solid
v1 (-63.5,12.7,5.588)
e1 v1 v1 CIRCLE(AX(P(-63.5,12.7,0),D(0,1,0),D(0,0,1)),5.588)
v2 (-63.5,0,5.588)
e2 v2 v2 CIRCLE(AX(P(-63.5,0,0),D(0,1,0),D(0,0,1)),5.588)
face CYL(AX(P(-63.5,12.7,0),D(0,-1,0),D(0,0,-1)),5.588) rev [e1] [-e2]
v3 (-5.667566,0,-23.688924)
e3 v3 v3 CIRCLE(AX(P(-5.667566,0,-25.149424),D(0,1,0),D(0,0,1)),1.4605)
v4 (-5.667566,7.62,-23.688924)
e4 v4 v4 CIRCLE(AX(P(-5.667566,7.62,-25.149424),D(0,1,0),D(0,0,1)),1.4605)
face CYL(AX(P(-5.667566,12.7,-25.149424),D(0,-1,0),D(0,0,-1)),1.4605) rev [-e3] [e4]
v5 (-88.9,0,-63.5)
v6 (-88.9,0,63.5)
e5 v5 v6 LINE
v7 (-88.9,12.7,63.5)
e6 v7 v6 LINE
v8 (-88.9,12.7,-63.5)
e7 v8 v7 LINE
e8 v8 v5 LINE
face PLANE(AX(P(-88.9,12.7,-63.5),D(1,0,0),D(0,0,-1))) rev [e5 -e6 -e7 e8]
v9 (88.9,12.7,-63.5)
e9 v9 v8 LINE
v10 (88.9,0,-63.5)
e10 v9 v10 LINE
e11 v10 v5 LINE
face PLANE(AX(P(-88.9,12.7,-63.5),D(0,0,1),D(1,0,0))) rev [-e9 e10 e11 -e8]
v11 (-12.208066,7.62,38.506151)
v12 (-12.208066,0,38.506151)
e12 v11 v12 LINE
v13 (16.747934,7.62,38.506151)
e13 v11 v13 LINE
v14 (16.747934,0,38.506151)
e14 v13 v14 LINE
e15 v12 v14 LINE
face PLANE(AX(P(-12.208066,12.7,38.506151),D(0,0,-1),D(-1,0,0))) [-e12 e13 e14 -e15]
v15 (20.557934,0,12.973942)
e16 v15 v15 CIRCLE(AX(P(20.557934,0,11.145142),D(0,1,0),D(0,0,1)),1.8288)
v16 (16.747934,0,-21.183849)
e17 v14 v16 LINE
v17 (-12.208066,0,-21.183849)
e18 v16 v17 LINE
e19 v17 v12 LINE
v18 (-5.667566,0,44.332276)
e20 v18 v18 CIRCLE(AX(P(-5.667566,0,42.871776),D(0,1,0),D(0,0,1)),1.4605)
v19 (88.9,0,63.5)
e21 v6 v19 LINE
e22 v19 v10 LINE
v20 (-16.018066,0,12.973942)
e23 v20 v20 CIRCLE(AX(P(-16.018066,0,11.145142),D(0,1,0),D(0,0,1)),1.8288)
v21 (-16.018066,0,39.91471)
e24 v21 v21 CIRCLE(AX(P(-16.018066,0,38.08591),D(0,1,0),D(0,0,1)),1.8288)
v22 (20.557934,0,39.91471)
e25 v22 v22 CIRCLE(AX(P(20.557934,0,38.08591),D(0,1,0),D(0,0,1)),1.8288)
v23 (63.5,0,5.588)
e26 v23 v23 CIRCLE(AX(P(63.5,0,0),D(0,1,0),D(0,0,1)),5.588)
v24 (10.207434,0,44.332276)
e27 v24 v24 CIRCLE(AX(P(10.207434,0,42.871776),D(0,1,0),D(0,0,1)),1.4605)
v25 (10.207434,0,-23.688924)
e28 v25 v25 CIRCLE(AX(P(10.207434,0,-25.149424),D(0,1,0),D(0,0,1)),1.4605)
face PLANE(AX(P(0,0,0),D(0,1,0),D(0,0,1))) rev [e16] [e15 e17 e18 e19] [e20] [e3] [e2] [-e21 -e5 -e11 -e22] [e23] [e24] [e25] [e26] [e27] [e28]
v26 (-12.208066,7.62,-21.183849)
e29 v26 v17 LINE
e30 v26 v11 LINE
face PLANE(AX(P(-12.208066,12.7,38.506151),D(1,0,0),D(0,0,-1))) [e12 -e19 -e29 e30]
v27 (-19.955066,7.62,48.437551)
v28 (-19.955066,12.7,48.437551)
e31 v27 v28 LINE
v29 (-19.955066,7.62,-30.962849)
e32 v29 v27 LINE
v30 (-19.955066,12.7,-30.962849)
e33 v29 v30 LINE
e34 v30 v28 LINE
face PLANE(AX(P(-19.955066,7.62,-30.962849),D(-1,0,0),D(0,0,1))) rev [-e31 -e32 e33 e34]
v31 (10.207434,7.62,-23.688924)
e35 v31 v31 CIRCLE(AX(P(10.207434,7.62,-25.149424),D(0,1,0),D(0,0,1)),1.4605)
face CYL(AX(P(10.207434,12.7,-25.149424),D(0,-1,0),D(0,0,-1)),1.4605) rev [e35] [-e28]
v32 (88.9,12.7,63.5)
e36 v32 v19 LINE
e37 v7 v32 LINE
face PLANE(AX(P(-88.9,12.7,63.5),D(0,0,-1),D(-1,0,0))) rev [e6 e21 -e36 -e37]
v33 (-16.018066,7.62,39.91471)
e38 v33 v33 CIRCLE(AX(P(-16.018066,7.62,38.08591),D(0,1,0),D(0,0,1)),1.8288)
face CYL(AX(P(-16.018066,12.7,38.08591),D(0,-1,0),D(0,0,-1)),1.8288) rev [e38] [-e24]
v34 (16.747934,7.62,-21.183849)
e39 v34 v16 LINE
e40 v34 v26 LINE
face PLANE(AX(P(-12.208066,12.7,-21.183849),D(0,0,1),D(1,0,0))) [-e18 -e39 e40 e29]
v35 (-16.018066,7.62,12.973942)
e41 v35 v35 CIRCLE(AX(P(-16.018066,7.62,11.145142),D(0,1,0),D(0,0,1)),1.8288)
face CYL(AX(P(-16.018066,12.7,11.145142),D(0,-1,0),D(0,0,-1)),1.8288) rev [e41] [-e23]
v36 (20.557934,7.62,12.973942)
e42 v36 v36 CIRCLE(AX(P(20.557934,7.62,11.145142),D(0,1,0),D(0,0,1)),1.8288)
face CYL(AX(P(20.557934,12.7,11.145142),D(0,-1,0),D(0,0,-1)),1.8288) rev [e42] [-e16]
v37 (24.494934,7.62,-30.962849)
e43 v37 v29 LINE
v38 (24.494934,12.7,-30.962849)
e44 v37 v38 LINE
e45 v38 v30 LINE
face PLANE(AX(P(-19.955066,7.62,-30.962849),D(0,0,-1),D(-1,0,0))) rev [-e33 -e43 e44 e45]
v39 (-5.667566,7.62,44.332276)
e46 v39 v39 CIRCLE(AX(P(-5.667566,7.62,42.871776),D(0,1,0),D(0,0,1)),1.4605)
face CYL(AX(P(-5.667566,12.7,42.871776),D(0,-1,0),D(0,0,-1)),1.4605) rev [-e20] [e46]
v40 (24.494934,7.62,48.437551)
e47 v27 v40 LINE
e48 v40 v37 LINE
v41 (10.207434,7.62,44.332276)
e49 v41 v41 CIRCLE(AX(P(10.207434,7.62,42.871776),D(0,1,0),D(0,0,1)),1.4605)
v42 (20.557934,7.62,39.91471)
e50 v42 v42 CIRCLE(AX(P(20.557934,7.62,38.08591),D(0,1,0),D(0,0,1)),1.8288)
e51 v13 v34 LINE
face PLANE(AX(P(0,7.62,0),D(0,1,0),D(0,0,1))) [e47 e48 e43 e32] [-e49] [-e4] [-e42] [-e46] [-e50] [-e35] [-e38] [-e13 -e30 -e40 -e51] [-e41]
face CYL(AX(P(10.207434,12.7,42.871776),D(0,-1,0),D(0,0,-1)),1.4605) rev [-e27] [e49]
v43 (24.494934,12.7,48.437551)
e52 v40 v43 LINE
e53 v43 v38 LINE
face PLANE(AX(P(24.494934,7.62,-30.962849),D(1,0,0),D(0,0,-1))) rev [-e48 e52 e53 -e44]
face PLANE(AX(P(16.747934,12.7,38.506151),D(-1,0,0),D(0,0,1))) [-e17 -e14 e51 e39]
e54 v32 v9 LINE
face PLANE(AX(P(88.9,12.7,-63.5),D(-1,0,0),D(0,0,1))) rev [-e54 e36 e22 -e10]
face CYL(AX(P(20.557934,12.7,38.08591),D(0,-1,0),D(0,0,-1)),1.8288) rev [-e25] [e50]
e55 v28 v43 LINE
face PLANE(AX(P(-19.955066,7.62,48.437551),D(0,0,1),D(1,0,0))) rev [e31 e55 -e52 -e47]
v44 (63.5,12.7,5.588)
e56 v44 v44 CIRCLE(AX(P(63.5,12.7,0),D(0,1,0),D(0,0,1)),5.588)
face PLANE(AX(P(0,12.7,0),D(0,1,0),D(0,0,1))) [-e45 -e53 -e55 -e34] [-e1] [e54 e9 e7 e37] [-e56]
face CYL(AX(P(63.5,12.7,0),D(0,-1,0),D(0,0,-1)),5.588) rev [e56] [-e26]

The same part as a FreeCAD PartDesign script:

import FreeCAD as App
import Part
import Sketcher
from FreeCAD import Vector
Q = App.Units.Quantity

doc = App.newDocument("Part")
body = doc.addObject("PartDesign::Body", "Body")

sketch1 = body.newObject("Sketcher::SketchObject", "Sketch")
sketch1.AttachmentSupport = (doc.getObject("XZ_Plane"), [""])
sketch1.MapMode = "FlatFace"
sketch1.addGeometry([
    Part.LineSegment(Vector(-88.9, -63.5, 0), Vector(-88.9, 63.5, 0)),
    Part.LineSegment(Vector(-88.9, 63.5, 0), Vector(88.9, 63.5, 0)),
    Part.LineSegment(Vector(88.9, 63.5, 0), Vector(88.9, -63.5, 0)),
    Part.LineSegment(Vector(88.9, -63.5, 0), Vector(-88.9, -63.5, 0)),
    Part.Circle(Vector(-5.7, 42.9, 0), Vector(0, 0, 1), 1.5),
    Part.Circle(Vector(-16, 38.1, 0), Vector(0, 0, 1), 1.8),
    Part.Circle(Vector(-16, 11.1, 0), Vector(0, 0, 1), 1.8),
    Part.Circle(Vector(10.2, 42.9, 0), Vector(0, 0, 1), 1.5),
    Part.Circle(Vector(20.6, 38.1, 0), Vector(0, 0, 1), 1.8),
    Part.Circle(Vector(20.6, 11.1, 0), Vector(0, 0, 1), 1.8),
    Part.Circle(Vector(-63.5, 0, 0), Vector(0, 0, 1), 5.6),
    Part.Circle(Vector(-5.7, -25.1, 0), Vector(0, 0, 1), 1.5),
    Part.LineSegment(Vector(16.7, 38.5, 0), Vector(-12.2, 38.5, 0)),
    Part.LineSegment(Vector(-12.2, 38.5, 0), Vector(-12.2, -21.2, 0)),
    Part.LineSegment(Vector(-12.2, -21.2, 0), Vector(16.7, -21.2, 0)),
    Part.LineSegment(Vector(16.7, -21.2, 0), Vector(16.7, 38.5, 0)),
    Part.Circle(Vector(63.5, 0, 0), Vector(0, 0, 1), 5.6),
    Part.Circle(Vector(10.2, -25.1, 0), Vector(0, 0, 1), 1.5),
], False)
sketch1.addConstraint([
    Sketcher.Constraint("Coincident", 0, 2, 1, 1),
    Sketcher.Constraint("Coincident", 1, 2, 2, 1),
    Sketcher.Constraint("Coincident", 2, 2, 3, 1),
    Sketcher.Constraint("Coincident", 3, 2, 0, 1),
    Sketcher.Constraint("Coincident", 12, 2, 13, 1),
    Sketcher.Constraint("Coincident", 13, 2, 14, 1),
    Sketcher.Constraint("Coincident", 14, 2, 15, 1),
    Sketcher.Constraint("Coincident", 15, 2, 12, 1),
    Sketcher.Constraint("Vertical", 0),
    Sketcher.Constraint("Horizontal", 1),
    Sketcher.Constraint("Vertical", 2),
    Sketcher.Constraint("Horizontal", 3),
    Sketcher.Constraint("Horizontal", 12),
    Sketcher.Constraint("Vertical", 13),
    Sketcher.Constraint("Horizontal", 14),
    Sketcher.Constraint("Vertical", 15),
    Sketcher.Constraint("Equal", 5, 6),
    Sketcher.Constraint("Equal", 4, 7),
    Sketcher.Constraint("Equal", 6, 8),
    Sketcher.Constraint("Equal", 8, 9),
    Sketcher.Constraint("Equal", 7, 11),
    Sketcher.Constraint("Equal", 10, 16),
    Sketcher.Constraint("Equal", 11, 17),
    Sketcher.Constraint("Symmetric", 10, 3, 16, 3, -1, 1),
    Sketcher.Constraint("Symmetric", 0, 2, 2, 2, -1, 1),
    Sketcher.Constraint("PointOnObject", 10, 3, -1),
    Sketcher.Constraint("Horizontal", 4, 3, 7, 3),
    Sketcher.Constraint("Horizontal", 5, 3, 8, 3),
    Sketcher.Constraint("Horizontal", 6, 3, 9, 3),
    Sketcher.Constraint("Horizontal", 11, 3, 17, 3),
    Sketcher.Constraint("Vertical", 5, 3, 6, 3),
    Sketcher.Constraint("Vertical", 8, 3, 9, 3),
    Sketcher.Constraint("Vertical", 4, 3, 11, 3),
    Sketcher.Constraint("Vertical", 7, 3, 17, 3),
    Sketcher.Constraint("Diameter", 10, Q("0.44 in")),
    Sketcher.Constraint("DistanceX", 1, 1, 1, 2, Q("7 in")),
    Sketcher.Constraint("DistanceY", 0, 1, 0, 2, Q("5 in")),
    Sketcher.Constraint("Diameter", 4, Q("0.115 in")),
    Sketcher.Constraint("Diameter", 5, Q("0.144 in")),
    Sketcher.Constraint("DistanceX", 0, 2, 10, 3, Q("1 in")),
    Sketcher.Constraint("DistanceX", 12, 2, 12, 1, Q("1.14 in")),
    Sketcher.Constraint("DistanceY", 13, 2, 13, 1, Q("2.35 in")),
    Sketcher.Constraint("DistanceX", 5, 3, 8, 3, Q("1.44 in")),
    Sketcher.Constraint("DistanceX", 5, 3, 12, 2, Q("0.15 in")),
    Sketcher.Constraint("DistanceX", 4, 3, 7, 3, Q("0.625 in")),
    Sketcher.Constraint("DistanceY", 11, 3, 4, 3, Q("2.678 in")),
    Sketcher.Constraint("DistanceY", 12, 2, 4, 3, Q("0.171875 in")),
    Sketcher.Constraint("DistanceX", 5, 3, 4, 3, Q("0.4075 in")),
    Sketcher.Constraint("DistanceY", -1, 1, 5, 3, Q("38.08591 mm")),
    Sketcher.Constraint("DistanceY", -1, 1, 6, 3, Q("11.145142 mm")),
    Sketcher.Constraint("DistanceY", -1, 1, 12, 2, Q("38.506151 mm")),
    Sketcher.Constraint("DistanceX", 4, 3, -1, 1, Q("5.667566 mm")),
])
pad1 = body.newObject("PartDesign::Pad", "Pad")
pad1.Profile = sketch1
pad1.Length = Q("0.5 in")
pad1.Reversed = True

sketch2 = body.newObject("Sketcher::SketchObject", "Sketch001")
sketch2.AttachmentSupport = (doc.getObject("XZ_Plane"), [""])
sketch2.MapMode = "FlatFace"
sketch2.AttachmentOffset = App.Placement(Vector(0, 0, -0.5 * 25.4), App.Rotation())
sketch2.addGeometry([
    Part.LineSegment(Vector(-20, -31, 0), Vector(-20, 48, 0)),
    Part.LineSegment(Vector(-20, 48, 0), Vector(24, 48, 0)),
    Part.LineSegment(Vector(24, 48, 0), Vector(24, -31, 0)),
    Part.LineSegment(Vector(24, -31, 0), Vector(-20, -31, 0)),
], False)
sketch2.addConstraint([
    Sketcher.Constraint("Coincident", 0, 2, 1, 1),
    Sketcher.Constraint("Coincident", 1, 2, 2, 1),
    Sketcher.Constraint("Coincident", 2, 2, 3, 1),
    Sketcher.Constraint("Coincident", 3, 2, 0, 1),
    Sketcher.Constraint("Vertical", 0),
    Sketcher.Constraint("Horizontal", 1),
    Sketcher.Constraint("Vertical", 2),
    Sketcher.Constraint("Horizontal", 3),
    Sketcher.Constraint("DistanceX", 1, 1, 1, 2, Q("1.75 in")),
    Sketcher.Constraint("DistanceY", 0, 1, 0, 2, Q("3.126 in")),
    Sketcher.Constraint("DistanceY", -1, 1, 0, 2, Q("48.437551 mm")),
    Sketcher.Constraint("DistanceX", 0, 2, -1, 1, Q("19.955066 mm")),
])
pocket1 = body.newObject("PartDesign::Pocket", "Pocket")
pocket1.Profile = sketch2
pocket1.Length = Q("0.2 in")
pocket1.Reversed = True

doc.recompute()
